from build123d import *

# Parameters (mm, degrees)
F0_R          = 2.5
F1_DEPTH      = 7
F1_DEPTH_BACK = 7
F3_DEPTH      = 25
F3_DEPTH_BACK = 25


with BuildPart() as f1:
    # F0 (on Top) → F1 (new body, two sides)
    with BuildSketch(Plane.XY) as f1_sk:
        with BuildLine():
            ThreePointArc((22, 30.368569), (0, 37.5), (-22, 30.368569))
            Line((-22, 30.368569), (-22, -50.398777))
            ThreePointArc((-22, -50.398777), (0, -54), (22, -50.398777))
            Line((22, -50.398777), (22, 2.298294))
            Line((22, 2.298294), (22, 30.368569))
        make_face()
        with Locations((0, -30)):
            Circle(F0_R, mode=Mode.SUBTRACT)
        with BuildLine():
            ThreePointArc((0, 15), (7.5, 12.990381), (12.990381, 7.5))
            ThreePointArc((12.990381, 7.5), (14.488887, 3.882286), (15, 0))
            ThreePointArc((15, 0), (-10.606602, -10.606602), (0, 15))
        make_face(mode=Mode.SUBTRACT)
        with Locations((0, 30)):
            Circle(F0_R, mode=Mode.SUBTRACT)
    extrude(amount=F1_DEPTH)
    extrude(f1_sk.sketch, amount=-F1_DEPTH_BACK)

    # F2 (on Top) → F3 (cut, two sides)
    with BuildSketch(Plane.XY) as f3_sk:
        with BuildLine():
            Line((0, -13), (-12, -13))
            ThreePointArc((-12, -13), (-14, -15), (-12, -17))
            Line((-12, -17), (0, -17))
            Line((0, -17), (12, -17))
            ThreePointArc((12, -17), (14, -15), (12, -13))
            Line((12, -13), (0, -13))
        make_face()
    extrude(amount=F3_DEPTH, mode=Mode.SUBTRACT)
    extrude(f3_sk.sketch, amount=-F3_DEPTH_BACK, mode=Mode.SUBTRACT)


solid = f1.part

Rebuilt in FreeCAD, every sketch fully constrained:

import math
import FreeCAD as App
import Part
import Sketcher

V = App.Vector
Q = App.Units.Quantity

doc = App.newDocument("Part")
body = doc.addObject("PartDesign::Body", "Body")

# Sketch on XY plane
sketch1 = body.newObject("Sketcher::SketchObject", "Sketch")
sketch1.AttachmentSupport = (doc.getObject("XY_Plane"), [""])
sketch1.MapMode = "FlatFace"
sketch1.addGeometry([
    Part.ArcOfCircle(Part.Circle(V(0, 0.000001, 0), V(0, 0, 1), 37.499999), math.radians(54.079179), math.radians(125.920821)),  # 0
    Part.LineSegment(V(-22, 30.368569, 0), V(-22, -50.398777, 0)),  # 1
    Part.ArcOfCircle(Part.Circle(V(0, 15.000005, 0), V(0, 0, 1), 69.000005), math.radians(-108.592821), math.radians(-71.407179)),  # 2
    Part.LineSegment(V(22, -50.398777, 0), V(22, 30.368569, 0)),  # 3
    Part.Circle(V(0, -30, 0), V(0, 0, 1), 2.5),  # 4
    Part.ArcOfCircle(Part.Circle(V(0, 0, 0), V(0, 0, 1), 15), math.radians(89.999999), math.radians(360.000001)),  # 5
    Part.ArcOfCircle(Part.Circle(V(0, 0, 0), V(0, 0, 1), 15), math.radians(30), math.radians(89.999999)),  # 6
    Part.ArcOfCircle(Part.Circle(V(-0.000008, -0.000002, 0), V(0, 0, 1), 15.000008), math.radians(0.000008), math.radians(29.999993)),  # 7
    Part.Circle(V(0, 30, 0), V(0, 0, 1), 2.5),  # 8
], False)
sketch1.addConstraint([
    Sketcher.Constraint("Coincident", 0, 2, 1, 1),
    Sketcher.Constraint("Coincident", 1, 2, 2, 1),
    Sketcher.Constraint("Coincident", 2, 2, 3, 1),
    Sketcher.Constraint("Coincident", 3, 2, 0, 1),
    Sketcher.Constraint("Tangent", 5, 1, 6, 2),
    Sketcher.Constraint("Tangent", 6, 1, 7, 2),
    Sketcher.Constraint("Tangent", 7, 1, 5, 2),
    Sketcher.Constraint("Vertical", 1),
    Sketcher.Constraint("Vertical", 3),
    Sketcher.Constraint("Coincident", 0, 3, -1, 1),
    Sketcher.Constraint("Coincident", 5, 3, -1, 1),
    Sketcher.Constraint("Coincident", 5, 1, 2, 3),
    Sketcher.Constraint("Equal", 4, 8),
    Sketcher.Constraint("Symmetric", 4, 3, 8, 3, -1, 1),
    Sketcher.Constraint("Symmetric", 1, 2, 2, 2, -2),
    Sketcher.Constraint("PointOnObject", 4, 3, -2),
    Sketcher.Constraint("PointOnObject", 7, 1, -1),
    Sketcher.Constraint("Diameter", 4, Q("5 mm")),
    Sketcher.Constraint("Radius", 5, Q("15 mm")),
    Sketcher.Constraint("Radius", 0, Q("37.499999 mm")),
    Sketcher.Constraint("DistanceY", 4, 3, -1, 1, Q("30 mm")),
    Sketcher.Constraint("DistanceX", 0, 2, -1, 1, Q("22 mm")),
    Sketcher.Constraint("DistanceY", -1, 1, 6, 1, Q("7.5 mm")),
    Sketcher.Constraint("Radius", 2, Q("69.000005 mm")),
])
pad1 = body.newObject("PartDesign::Pad", "Pad")
pad1.Profile = sketch1
pad1.Type = "TwoLengths"
pad1.Length = 7
pad1.Length2 = 7

# Sketch on XY plane
sketch2 = body.newObject("Sketcher::SketchObject", "Sketch001")
sketch2.AttachmentSupport = (doc.getObject("XY_Plane"), [""])
sketch2.MapMode = "FlatFace"
sketch2.addGeometry([
    Part.ArcOfCircle(Part.Circle(V(-12, -15, 0), V(0, 0, 1), 2), math.radians(90), math.radians(270)),
    Part.LineSegment(V(-12, -17, 0), V(12, -17, 0)),
    Part.ArcOfCircle(Part.Circle(V(12, -15, 0), V(0, 0, 1), 2), math.radians(-90), math.radians(90)),
    Part.LineSegment(V(12, -13, 0), V(-12, -13, 0)),
], False)
sketch2.addConstraint([
    Sketcher.Constraint("Tangent", 0, 2, 1, 1),
    Sketcher.Constraint("Tangent", 1, 2, 2, 1),
    Sketcher.Constraint("Tangent", 2, 2, 3, 1),
    Sketcher.Constraint("Tangent", 3, 2, 0, 1),
    Sketcher.Constraint("Horizontal", 1),
    Sketcher.Constraint("Horizontal", 3),
    Sketcher.Constraint("Radius", 0, Q("2 mm")),
    Sketcher.Constraint("DistanceX", 1, 1, 1, 2, Q("24 mm")),
    Sketcher.Constraint("DistanceX", 0, 3, -1, 1, Q("12 mm")),
    Sketcher.Constraint("DistanceY", 0, 3, -1, 1, Q("15 mm")),
])
pocket1 = body.newObject("PartDesign::Pocket", "Pocket")
pocket1.Profile = sketch2
pocket1.Type = "ThroughAll"
pocket1.Midplane = True

doc.recompute()
